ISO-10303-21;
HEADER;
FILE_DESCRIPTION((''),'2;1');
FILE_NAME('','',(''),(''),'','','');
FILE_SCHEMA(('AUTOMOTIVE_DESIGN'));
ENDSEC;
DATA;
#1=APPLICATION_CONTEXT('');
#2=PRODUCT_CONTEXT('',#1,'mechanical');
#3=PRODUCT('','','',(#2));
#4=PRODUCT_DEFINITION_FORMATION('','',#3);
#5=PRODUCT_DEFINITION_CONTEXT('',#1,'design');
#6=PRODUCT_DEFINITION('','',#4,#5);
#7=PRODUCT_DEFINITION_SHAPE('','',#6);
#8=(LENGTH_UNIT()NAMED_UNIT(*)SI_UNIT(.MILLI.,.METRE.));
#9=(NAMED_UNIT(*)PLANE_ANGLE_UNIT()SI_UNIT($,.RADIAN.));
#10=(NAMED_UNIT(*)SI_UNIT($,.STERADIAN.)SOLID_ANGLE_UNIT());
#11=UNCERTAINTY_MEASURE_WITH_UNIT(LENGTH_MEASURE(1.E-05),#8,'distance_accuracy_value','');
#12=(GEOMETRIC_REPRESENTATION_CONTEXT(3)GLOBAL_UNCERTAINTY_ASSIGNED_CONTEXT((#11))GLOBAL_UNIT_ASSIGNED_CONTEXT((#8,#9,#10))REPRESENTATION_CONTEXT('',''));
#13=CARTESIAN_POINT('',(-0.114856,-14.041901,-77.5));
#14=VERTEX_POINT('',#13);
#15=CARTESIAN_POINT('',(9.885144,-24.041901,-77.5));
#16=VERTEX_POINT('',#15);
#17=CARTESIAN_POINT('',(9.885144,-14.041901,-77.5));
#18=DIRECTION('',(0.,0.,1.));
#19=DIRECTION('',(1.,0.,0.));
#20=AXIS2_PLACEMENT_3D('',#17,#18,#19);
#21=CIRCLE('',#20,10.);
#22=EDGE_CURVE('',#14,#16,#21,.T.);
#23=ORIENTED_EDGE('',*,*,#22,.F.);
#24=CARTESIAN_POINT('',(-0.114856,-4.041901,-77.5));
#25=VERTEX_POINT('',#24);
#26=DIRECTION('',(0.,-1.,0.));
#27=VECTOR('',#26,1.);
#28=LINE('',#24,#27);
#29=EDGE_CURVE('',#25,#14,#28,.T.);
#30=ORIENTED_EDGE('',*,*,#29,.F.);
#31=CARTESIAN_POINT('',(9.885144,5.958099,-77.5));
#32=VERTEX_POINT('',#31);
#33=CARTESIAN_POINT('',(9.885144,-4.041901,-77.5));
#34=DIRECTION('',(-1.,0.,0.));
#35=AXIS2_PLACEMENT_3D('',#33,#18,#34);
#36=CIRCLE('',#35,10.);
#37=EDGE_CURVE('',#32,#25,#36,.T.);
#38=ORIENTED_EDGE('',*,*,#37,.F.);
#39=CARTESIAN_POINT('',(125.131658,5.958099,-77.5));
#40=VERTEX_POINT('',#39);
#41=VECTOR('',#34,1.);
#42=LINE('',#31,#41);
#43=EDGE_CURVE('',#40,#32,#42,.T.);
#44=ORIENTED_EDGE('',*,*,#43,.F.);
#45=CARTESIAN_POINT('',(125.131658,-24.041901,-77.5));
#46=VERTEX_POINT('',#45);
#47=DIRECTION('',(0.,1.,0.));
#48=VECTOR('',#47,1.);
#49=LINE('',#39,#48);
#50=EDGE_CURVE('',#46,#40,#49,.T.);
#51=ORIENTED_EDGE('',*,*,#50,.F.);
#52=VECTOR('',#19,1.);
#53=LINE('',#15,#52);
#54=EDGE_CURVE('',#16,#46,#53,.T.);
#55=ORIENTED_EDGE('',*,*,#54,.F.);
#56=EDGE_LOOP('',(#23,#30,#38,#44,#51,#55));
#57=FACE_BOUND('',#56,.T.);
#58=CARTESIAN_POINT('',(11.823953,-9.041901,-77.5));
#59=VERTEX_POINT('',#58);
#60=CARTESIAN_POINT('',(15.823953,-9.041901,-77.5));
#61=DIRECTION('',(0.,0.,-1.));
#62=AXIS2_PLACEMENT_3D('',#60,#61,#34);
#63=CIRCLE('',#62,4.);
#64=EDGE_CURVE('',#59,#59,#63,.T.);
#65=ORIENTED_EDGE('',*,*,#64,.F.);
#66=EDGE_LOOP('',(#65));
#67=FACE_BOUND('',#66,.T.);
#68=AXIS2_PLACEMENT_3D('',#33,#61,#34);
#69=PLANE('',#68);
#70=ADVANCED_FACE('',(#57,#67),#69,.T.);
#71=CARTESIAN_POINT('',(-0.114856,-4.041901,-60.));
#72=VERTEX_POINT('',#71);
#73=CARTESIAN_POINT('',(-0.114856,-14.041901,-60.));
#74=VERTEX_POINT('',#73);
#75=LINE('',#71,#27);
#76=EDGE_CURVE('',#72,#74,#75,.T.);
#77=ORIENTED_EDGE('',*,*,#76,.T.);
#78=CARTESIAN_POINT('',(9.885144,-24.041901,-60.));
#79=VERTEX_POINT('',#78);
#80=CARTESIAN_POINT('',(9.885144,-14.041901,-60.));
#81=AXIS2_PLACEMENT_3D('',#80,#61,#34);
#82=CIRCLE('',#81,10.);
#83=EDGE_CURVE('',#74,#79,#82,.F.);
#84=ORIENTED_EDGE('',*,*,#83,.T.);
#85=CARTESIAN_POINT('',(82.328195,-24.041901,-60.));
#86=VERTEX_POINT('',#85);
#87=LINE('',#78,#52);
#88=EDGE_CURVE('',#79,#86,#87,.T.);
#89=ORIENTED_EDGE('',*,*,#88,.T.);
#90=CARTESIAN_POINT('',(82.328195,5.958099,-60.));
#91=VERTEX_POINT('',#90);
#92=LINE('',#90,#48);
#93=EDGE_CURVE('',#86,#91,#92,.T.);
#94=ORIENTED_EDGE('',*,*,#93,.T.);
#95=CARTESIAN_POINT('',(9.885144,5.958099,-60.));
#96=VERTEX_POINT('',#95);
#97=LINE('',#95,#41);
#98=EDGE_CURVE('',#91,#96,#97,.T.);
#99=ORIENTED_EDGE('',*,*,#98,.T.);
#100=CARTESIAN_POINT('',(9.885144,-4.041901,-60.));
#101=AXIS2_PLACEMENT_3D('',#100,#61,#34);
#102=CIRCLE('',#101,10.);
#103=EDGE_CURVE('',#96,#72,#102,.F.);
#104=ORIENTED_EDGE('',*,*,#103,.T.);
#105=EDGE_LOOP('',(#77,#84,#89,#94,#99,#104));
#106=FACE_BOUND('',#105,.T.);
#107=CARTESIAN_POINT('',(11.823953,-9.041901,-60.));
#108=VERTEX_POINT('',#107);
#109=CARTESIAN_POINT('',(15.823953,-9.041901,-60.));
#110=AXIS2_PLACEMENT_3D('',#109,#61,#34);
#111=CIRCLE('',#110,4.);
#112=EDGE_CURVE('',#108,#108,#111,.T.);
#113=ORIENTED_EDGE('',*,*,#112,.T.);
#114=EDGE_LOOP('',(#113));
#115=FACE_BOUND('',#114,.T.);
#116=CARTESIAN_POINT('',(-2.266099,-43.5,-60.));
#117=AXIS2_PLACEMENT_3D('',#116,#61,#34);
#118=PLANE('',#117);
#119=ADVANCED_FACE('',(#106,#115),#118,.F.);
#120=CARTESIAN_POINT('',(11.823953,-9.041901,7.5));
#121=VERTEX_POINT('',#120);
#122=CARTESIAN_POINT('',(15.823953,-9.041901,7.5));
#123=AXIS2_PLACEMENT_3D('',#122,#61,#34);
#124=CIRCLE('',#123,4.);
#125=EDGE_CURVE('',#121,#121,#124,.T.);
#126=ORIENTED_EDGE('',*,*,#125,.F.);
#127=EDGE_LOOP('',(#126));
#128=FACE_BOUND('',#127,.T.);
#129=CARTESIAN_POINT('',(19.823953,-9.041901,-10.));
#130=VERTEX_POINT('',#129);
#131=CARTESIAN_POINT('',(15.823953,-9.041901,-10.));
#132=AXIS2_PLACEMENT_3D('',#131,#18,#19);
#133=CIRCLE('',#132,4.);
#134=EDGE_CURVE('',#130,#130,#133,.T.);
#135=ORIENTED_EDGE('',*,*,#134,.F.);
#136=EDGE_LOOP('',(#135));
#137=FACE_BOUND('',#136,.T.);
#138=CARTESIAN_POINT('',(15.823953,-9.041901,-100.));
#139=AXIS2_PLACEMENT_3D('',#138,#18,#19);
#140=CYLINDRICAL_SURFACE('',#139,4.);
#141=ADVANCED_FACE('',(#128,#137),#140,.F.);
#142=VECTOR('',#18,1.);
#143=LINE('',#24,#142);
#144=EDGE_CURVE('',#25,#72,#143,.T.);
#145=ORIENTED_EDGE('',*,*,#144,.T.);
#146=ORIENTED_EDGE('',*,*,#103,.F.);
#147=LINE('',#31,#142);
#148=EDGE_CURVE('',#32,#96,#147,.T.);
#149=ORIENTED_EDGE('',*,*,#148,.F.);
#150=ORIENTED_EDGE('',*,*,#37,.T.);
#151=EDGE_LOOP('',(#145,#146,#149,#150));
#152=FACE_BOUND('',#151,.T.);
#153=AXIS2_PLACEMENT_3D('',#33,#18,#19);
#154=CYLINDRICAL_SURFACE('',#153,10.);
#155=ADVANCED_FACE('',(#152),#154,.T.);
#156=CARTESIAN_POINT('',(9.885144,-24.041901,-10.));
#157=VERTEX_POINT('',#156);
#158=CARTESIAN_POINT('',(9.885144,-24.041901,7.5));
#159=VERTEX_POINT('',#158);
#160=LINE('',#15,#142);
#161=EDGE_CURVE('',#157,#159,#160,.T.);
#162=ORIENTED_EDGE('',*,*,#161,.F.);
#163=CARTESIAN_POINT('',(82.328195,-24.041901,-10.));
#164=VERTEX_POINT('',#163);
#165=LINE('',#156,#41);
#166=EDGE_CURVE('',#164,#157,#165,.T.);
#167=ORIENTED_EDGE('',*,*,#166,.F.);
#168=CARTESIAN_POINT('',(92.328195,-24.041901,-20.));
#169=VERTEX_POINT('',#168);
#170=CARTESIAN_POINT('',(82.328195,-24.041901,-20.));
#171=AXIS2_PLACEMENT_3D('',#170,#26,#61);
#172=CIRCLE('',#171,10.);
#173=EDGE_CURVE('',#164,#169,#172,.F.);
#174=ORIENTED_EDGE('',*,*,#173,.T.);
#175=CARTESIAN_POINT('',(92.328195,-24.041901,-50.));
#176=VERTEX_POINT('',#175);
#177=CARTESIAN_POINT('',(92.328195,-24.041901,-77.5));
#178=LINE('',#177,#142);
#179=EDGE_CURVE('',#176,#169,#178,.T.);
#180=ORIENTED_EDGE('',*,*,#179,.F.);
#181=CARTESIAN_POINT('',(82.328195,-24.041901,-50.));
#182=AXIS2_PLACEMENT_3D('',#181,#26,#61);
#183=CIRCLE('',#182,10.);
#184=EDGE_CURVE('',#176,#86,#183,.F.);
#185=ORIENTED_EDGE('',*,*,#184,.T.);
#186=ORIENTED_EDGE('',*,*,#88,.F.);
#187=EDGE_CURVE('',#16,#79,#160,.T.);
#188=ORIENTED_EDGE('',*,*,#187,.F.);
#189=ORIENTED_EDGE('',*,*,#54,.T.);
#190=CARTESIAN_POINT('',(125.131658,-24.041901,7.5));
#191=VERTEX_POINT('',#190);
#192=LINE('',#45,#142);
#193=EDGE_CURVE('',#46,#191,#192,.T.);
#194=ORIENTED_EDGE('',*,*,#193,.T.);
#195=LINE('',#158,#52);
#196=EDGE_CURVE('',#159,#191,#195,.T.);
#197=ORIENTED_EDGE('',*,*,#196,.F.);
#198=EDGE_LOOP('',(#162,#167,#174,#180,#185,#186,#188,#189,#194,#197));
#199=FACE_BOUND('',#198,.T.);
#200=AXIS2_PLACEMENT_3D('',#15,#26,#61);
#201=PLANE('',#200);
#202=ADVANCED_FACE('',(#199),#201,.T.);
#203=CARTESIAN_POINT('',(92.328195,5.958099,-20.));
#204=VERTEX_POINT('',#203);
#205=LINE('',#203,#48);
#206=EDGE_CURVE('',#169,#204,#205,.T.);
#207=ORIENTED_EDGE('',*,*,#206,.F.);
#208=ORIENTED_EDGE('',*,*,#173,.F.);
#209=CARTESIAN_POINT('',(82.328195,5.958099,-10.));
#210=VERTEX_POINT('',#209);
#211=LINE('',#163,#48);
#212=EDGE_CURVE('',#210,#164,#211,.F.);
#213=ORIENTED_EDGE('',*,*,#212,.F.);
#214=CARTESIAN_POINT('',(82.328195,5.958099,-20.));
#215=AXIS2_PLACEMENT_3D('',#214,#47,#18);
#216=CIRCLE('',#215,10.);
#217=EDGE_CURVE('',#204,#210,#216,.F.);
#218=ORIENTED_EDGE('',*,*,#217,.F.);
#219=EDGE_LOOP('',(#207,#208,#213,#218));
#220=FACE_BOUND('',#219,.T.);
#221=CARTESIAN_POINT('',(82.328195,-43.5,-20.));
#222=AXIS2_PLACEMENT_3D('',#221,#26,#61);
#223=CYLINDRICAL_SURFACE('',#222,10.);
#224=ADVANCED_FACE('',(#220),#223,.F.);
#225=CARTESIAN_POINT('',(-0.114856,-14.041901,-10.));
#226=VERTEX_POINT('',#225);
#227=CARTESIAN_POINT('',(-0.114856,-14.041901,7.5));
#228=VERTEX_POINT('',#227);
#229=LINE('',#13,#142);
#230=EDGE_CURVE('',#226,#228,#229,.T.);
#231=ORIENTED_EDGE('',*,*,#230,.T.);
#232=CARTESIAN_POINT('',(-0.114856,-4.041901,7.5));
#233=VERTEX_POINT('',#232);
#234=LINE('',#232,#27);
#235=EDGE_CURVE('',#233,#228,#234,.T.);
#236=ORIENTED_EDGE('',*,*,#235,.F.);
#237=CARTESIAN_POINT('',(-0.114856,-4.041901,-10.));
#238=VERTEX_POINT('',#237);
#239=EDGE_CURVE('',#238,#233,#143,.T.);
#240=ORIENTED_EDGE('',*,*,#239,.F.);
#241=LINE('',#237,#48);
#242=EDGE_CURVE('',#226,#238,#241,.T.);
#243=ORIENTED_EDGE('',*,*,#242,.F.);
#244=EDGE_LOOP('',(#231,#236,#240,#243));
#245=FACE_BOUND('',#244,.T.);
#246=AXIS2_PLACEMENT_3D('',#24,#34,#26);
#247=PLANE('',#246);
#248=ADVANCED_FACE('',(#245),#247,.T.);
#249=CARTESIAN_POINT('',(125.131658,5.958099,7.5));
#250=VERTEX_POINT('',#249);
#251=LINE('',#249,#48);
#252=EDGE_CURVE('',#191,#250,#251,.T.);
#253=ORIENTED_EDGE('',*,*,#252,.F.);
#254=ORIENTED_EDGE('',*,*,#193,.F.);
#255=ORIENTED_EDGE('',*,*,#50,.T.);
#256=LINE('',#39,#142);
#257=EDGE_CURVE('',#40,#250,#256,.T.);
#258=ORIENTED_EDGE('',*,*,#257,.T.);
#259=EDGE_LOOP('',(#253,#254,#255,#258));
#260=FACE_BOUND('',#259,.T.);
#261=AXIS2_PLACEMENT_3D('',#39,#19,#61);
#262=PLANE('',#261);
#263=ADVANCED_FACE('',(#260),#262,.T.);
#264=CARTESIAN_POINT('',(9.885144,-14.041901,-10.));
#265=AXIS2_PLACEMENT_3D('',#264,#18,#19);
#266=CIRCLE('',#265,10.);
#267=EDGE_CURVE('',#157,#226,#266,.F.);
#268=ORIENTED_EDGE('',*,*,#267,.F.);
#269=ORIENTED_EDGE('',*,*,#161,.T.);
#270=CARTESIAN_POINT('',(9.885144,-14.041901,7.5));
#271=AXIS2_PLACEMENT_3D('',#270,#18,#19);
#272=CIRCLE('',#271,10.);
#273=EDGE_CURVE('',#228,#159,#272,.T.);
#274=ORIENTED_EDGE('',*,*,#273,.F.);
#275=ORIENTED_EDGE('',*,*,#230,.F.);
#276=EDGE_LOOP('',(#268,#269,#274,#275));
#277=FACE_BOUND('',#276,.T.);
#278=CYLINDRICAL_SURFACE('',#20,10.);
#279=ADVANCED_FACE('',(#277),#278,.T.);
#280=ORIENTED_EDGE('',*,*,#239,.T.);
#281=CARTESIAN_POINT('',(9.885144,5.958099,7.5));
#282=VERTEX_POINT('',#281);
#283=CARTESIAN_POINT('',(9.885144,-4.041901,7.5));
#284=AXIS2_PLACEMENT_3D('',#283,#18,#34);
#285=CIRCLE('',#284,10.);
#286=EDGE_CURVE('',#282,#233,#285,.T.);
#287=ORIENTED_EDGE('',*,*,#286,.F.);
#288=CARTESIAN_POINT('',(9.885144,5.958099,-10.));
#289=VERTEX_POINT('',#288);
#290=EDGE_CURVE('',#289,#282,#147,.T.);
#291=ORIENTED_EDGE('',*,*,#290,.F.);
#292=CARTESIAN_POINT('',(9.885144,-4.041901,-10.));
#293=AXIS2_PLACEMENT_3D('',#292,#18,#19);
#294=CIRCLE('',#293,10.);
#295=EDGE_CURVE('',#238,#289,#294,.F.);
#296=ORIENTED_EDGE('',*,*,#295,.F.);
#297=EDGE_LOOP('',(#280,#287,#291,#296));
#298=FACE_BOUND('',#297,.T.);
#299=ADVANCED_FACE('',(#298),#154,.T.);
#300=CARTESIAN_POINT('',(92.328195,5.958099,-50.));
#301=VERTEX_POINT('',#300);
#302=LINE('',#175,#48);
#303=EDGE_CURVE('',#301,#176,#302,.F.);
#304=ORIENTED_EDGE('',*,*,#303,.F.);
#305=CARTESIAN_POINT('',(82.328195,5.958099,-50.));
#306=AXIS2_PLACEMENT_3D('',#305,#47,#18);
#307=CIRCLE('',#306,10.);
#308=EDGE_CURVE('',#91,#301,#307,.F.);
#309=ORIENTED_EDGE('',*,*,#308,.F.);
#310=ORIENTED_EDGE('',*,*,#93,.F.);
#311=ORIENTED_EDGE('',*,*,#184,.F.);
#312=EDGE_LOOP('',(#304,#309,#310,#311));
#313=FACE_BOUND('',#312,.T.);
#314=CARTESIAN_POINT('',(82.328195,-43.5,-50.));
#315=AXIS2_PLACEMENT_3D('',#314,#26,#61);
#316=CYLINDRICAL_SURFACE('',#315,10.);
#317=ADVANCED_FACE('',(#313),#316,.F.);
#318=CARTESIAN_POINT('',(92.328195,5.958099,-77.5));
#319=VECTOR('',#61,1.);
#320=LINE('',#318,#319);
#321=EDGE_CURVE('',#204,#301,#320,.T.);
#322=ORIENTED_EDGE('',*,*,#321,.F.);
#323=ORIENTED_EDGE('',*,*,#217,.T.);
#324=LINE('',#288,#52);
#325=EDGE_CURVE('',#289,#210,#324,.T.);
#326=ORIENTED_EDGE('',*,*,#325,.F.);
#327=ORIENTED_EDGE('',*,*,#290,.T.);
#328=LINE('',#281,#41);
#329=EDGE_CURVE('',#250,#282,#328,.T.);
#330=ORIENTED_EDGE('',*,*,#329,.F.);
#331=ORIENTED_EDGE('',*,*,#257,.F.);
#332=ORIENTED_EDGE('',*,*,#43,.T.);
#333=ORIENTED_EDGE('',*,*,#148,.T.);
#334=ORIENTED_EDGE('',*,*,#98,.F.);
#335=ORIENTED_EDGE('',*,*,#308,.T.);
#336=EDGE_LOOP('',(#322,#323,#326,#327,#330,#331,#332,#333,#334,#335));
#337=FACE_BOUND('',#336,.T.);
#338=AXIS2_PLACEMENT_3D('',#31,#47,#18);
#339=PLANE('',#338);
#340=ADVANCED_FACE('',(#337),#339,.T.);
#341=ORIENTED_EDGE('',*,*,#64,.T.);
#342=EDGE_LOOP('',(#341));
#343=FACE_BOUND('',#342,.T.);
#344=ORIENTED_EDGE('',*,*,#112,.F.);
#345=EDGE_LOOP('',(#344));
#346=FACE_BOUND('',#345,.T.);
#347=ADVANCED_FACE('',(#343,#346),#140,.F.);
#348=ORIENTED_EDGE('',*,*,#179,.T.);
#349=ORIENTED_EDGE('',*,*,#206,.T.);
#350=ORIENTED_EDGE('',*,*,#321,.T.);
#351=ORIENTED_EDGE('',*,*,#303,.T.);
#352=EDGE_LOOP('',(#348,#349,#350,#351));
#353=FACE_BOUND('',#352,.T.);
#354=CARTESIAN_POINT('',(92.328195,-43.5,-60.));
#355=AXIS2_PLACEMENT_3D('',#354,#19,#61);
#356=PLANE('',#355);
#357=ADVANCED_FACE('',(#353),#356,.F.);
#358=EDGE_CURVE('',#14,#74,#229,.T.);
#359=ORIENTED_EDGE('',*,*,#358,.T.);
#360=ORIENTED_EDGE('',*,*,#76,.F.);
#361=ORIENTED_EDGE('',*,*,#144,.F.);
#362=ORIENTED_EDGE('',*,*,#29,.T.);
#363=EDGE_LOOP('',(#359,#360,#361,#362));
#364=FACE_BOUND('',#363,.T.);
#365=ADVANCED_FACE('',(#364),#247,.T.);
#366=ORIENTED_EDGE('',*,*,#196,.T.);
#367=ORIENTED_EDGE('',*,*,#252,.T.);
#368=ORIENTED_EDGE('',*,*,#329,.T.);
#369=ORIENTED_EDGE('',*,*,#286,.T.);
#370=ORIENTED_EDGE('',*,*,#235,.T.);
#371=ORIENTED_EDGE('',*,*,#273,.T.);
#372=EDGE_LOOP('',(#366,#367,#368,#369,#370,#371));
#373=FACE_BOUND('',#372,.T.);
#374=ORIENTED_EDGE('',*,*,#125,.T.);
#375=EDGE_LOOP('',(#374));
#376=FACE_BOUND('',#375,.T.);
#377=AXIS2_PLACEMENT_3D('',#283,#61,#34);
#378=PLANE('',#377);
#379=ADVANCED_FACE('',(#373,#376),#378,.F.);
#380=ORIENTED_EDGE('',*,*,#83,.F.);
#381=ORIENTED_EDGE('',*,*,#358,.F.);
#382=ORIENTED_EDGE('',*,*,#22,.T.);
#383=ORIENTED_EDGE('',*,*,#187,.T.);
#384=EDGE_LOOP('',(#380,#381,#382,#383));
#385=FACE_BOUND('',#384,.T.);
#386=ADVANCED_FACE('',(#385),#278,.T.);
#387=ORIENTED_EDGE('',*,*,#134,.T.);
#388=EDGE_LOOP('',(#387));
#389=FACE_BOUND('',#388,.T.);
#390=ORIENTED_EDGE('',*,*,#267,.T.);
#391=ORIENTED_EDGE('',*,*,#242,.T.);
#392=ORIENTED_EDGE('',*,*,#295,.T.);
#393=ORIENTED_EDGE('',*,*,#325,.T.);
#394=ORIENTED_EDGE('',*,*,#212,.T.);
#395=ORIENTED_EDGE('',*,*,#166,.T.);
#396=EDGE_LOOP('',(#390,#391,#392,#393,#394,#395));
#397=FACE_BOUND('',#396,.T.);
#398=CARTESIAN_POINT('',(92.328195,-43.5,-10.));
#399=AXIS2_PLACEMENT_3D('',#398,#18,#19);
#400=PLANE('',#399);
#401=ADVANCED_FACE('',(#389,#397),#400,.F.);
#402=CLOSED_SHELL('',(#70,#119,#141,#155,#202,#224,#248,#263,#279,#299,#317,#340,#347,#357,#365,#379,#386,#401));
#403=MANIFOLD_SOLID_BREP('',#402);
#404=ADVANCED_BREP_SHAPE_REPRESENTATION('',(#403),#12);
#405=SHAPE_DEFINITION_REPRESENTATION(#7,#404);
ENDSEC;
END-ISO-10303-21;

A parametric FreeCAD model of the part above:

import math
import FreeCAD as App
import Part
import Sketcher

V = App.Vector


def edges_at(feature, points):
    """Names of the edges that pass closest to the given points."""
    edges = feature.Shape.Edges
    near = lambda p: min(range(len(edges)), key=lambda i: edges[i].distToShape(Part.Vertex(*p))[0])
    return sorted({f"Edge{near(p) + 1}" for p in points})

doc = App.newDocument("Part")
params = doc.addObject("Spreadsheet::Sheet", "Params")
for row, (alias, value) in enumerate([
    ("sketch1_radius", "10 mm"),
    ("sketch1_height", "10 mm"),
    ("pad1_length", "85 mm"),
    ("sketch2_height", "50 mm"),
    ("pocket1_length", "87 mm"),
    ("sketch3_diameter", "8 mm"),
    ("pocket2_length", "200 mm"),
    ("fillet_radius", "10 mm"),
], start=1):
    params.set(f"A{row}", alias)
    params.set(f"B{row}", "=" + value)
    params.setAlias(f"B{row}", alias)

body = doc.addObject("PartDesign::Body", "Body")

# Sketch on XY plane
sketch1 = body.newObject("Sketcher::SketchObject", "Sketch")
sketch1.AttachmentSupport = (doc.getObject("XY_Plane"), [""])
sketch1.MapMode = "FlatFace"
sketch1.AttachmentOffset = App.Placement(V(0, 0, 7.5), App.Rotation())
sketch1.addGeometry([
    Part.LineSegment(V(-0.114856, -4.041901, 0), V(-0.114856, -14.041901, 0)),  # 0
    Part.ArcOfCircle(Part.Circle(V(9.885144, -14.041901, 0), V(0, 0, 1), 10), math.radians(180), math.radians(270)),  # 1
    Part.LineSegment(V(9.885144, -24.041901, 0), V(125.131658, -24.041901, 0)),  # 2
    Part.LineSegment(V(125.131658, -24.041901, 0), V(125.131658, 5.958099, 0)),  # 3
    Part.LineSegment(V(125.131658, 5.958099, 0), V(9.885144, 5.958099, 0)),  # 4
    Part.ArcOfCircle(Part.Circle(V(9.885144, -4.041901, 0), V(0, 0, 1), 10), math.radians(90), math.radians(180)),  # 5
], False)
sketch1.addConstraint([
    Sketcher.Constraint("Tangent", 0, 2, 1, 1),
    Sketcher.Constraint("Tangent", 1, 2, 2, 1),
    Sketcher.Constraint("Coincident", 2, 2, 3, 1),
    Sketcher.Constraint("Coincident", 3, 2, 4, 1),
    Sketcher.Constraint("Tangent", 4, 2, 5, 1),
    Sketcher.Constraint("Tangent", 5, 2, 0, 1),
    Sketcher.Constraint("Vertical", 0),
    Sketcher.Constraint("Horizontal", 2),
    Sketcher.Constraint("Vertical", 3),
    Sketcher.Constraint("Horizontal", 4),
    Sketcher.Constraint("Equal", 1, 5),
    Sketcher.Constraint("Radius", 1, 10.0),
    Sketcher.Constraint("DistanceY", 0, 2, 0, 1, 10.0),
    Sketcher.Constraint("DistanceY", 1, 3, -1, 1, 14.041901),
    Sketcher.Constraint("DistanceX", 2, 1, 2, 2, 115.246514),
    Sketcher.Constraint("DistanceX", -1, 1, 2, 2, 125.131658),
])
sketch1.setExpression("Constraints[11]", "Params.sketch1_radius")
sketch1.setExpression("Constraints[12]", "Params.sketch1_height")
pad1 = body.newObject("PartDesign::Pad", "Pad")
pad1.Profile = sketch1
pad1.setExpression("Length", "Params.pad1_length")
pad1.Reversed = True

# Sketch on XZ plane
sketch2 = body.newObject("Sketcher::SketchObject", "Sketch001")
sketch2.AttachmentSupport = (doc.getObject("XZ_Plane"), [""])
sketch2.MapMode = "FlatFace"
sketch2.addGeometry([
    Part.LineSegment(V(-2.266099, -60, 0), V(-2.266099, -10, 0)),
    Part.LineSegment(V(-2.266099, -10, 0), V(92.328195, -10, 0)),
    Part.LineSegment(V(92.328195, -10, 0), V(92.328195, -60, 0)),
    Part.LineSegment(V(92.328195, -60, 0), V(-2.266099, -60, 0)),
], False)
sketch2.addConstraint([
    Sketcher.Constraint("Coincident", 0, 2, 1, 1),
    Sketcher.Constraint("Coincident", 1, 2, 2, 1),
    Sketcher.Constraint("Coincident", 2, 2, 3, 1),
    Sketcher.Constraint("Coincident", 3, 2, 0, 1),
    Sketcher.Constraint("Vertical", 0),
    Sketcher.Constraint("Horizontal", 1),
    Sketcher.Constraint("Vertical", 2),
    Sketcher.Constraint("Horizontal", 3),
    Sketcher.Constraint("DistanceY", 0, 1, 0, 2, 50.0),
    Sketcher.Constraint("DistanceY", 0, 2, -1, 1, 10.0),
    Sketcher.Constraint("DistanceX", 0, 2, -1, 1, 2.266099),
    Sketcher.Constraint("DistanceX", 1, 1, 1, 2, 94.594294),
])
sketch2.setExpression("Constraints[8]", "Params.sketch2_height")
pocket1 = body.newObject("PartDesign::Pocket", "Pocket")
pocket1.Profile = sketch2
pocket1.setExpression("Length", "Params.pocket1_length")
pocket1.Midplane = True

# Sketch on XY plane
sketch3 = body.newObject("Sketcher::SketchObject", "Sketch002")
sketch3.AttachmentSupport = (doc.getObject("XY_Plane"), [""])
sketch3.MapMode = "FlatFace"
sketch3.addGeometry(Part.Circle(V(15.823953, -9.041901, 0), V(0, 0, 1), 4), False)
sketch3.addConstraint([
    Sketcher.Constraint("Diameter", 0, 8.0),
    Sketcher.Constraint("DistanceY", 0, 3, -1, 1, 9.041901),
    Sketcher.Constraint("DistanceX", -1, 1, 0, 3, 15.823953),
])
sketch3.setExpression("Constraints[0]", "Params.sketch3_diameter")
pocket2 = body.newObject("PartDesign::Pocket", "Pocket001")
pocket2.Profile = sketch3
pocket2.setExpression("Length", "Params.pocket2_length")
pocket2.Midplane = True
doc.recompute()

fillet = body.newObject("PartDesign::Fillet", "Fillet")
fillet.Base = (pocket2, edges_at(pocket2, [(92.328, -9.042, -60), (92.328, -9.042, -10)]))
fillet.setExpression("Radius", "Params.fillet_radius")

doc.recompute()
